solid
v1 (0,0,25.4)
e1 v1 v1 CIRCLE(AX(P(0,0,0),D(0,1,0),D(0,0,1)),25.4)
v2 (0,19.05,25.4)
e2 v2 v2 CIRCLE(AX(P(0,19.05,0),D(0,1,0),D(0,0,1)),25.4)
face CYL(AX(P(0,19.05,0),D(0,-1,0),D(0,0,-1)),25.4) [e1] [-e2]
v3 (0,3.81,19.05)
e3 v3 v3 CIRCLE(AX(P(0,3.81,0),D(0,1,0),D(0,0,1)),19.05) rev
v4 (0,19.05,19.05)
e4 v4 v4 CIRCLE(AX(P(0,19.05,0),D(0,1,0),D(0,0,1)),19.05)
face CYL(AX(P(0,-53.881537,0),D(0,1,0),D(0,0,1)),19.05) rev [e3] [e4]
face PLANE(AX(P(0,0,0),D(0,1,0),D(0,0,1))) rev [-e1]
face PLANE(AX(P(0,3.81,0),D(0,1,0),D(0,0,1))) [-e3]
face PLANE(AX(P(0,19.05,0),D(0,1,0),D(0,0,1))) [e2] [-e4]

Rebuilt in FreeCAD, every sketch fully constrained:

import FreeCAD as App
import Part
import Sketcher

V = App.Vector
Q = App.Units.Quantity

doc = App.newDocument("Part")
params = doc.addObject("Spreadsheet::Sheet", "Params")
for row, (alias, value) in enumerate([
    ("sketch1_diameter", "2 in"),
    ("pad1_length", "0.75 in"),
    ("sketch2_diameter", "1.5 in"),
    ("pocket1_length", "0.6 in"),
], start=1):
    params.set(f"A{row}", alias)
    params.set(f"B{row}", "=" + value)
    params.setAlias(f"B{row}", alias)

body = doc.addObject("PartDesign::Body", "Body")

# Sketch on XZ plane
sketch1 = doc.addObject("Sketcher::SketchObject", "Sketch")
body.addObject(sketch1)
sketch1.AttachmentSupport = (doc.XZ_Plane, [""])
sketch1.MapMode = "FlatFace"
sketch1.addGeometry(Part.Circle(V(0, 0, 0), V(0, 0, 1), 25), False)
sketch1.addConstraint([
    Sketcher.Constraint("Coincident", 0, 3, -1, 1),
    Sketcher.Constraint("Diameter", 0, Q("2 in")),
])
sketch1.setExpression("Constraints[1]", "Params.sketch1_diameter")
pad1 = doc.addObject("PartDesign::Pad", "Pad")
body.addObject(pad1)
pad1.Profile = sketch1
pad1.setExpression("Length", "Params.pad1_length")
pad1.Reversed = True

# Sketch on XZ plane
sketch2 = doc.addObject("Sketcher::SketchObject", "Sketch001")
body.addObject(sketch2)
sketch2.AttachmentSupport = (doc.XZ_Plane, [""])
sketch2.MapMode = "FlatFace"
sketch2.AttachmentOffset = App.Placement(V(0, 0, -0.75 * 25.4), App.Rotation())
sketch2.addGeometry(Part.Circle(V(0, 0, 0), V(0, 0, 1), 19), False)
sketch2.addConstraint([
    Sketcher.Constraint("Coincident", 0, 3, -1, 1),
    Sketcher.Constraint("Diameter", 0, Q("1.5 in")),
])
sketch2.setExpression("Constraints[1]", "Params.sketch2_diameter")
pocket1 = doc.addObject("PartDesign::Pocket", "Pocket")
body.addObject(pocket1)
pocket1.Profile = sketch2
pocket1.setExpression("Length", "Params.pocket1_length")
pocket1.Reversed = True

doc.recompute()
